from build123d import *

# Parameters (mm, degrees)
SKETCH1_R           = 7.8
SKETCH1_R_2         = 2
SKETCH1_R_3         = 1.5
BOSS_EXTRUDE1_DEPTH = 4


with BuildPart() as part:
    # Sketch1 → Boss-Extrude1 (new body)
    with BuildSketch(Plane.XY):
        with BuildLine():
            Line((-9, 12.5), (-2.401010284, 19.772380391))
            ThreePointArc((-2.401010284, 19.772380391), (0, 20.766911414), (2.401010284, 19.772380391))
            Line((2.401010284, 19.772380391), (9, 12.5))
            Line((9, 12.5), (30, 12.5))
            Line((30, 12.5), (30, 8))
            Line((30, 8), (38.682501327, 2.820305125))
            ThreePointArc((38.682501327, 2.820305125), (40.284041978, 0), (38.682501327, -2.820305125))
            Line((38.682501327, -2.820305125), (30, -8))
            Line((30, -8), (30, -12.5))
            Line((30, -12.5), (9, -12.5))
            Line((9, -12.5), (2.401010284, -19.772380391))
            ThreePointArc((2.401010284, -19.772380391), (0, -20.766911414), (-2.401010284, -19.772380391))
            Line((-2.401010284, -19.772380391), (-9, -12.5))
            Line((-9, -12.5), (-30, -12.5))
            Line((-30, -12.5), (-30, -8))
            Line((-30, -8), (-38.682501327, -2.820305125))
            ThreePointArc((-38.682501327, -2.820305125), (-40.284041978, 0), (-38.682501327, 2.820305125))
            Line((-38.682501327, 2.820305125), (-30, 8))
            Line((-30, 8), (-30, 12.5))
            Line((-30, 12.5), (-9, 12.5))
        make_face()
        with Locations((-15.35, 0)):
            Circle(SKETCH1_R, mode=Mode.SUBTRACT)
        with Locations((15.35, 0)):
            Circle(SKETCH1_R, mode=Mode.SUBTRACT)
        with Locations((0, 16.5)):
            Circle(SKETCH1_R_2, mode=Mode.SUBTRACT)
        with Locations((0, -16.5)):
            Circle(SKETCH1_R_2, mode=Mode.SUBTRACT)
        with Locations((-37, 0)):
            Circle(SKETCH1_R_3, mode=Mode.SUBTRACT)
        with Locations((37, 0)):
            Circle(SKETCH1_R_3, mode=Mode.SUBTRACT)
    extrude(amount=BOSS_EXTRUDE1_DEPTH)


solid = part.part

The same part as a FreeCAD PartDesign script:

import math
import FreeCAD as App
import Part
import Sketcher

doc = App.newDocument("Part")
body = doc.addObject("PartDesign::Body", "Body")

sketch1 = doc.addObject("Sketcher::SketchObject", "Sketch")
body.addObject(sketch1)
sketch1.AttachmentSupport = (doc.XY_Plane, [""])
sketch1.MapMode = "FlatFace"
sketch1.addGeometry(Part.LineSegment(App.Vector(-2.4, 19.8, 0), App.Vector(-9, 12.5, 0)), False)
sketch1.addGeometry(Part.LineSegment(App.Vector(-9, 12.5, 0), App.Vector(-30, 12.5, 0)), False)
sketch1.addGeometry(Part.LineSegment(App.Vector(-30, 12.5, 0), App.Vector(-30, 8, 0)), False)
sketch1.addGeometry(Part.LineSegment(App.Vector(-30, 8, 0), App.Vector(-38.7, 2.8, 0)), False)
sketch1.addGeometry(Part.ArcOfCircle(Part.Circle(App.Vector(-37, 0, 0), App.Vector(0, 0, 1), 3.3), math.radians(121), math.radians(239)), False)
sketch1.addGeometry(Part.LineSegment(App.Vector(-38.7, -2.8, 0), App.Vector(-30, -8, 0)), False)
sketch1.addGeometry(Part.LineSegment(App.Vector(-30, -8, 0), App.Vector(-30, -12.5, 0)), False)
sketch1.addGeometry(Part.LineSegment(App.Vector(-30, -12.5, 0), App.Vector(-9, -12.5, 0)), False)
sketch1.addGeometry(Part.LineSegment(App.Vector(-9, -12.5, 0), App.Vector(-2.4, -19.8, 0)), False)
sketch1.addGeometry(Part.ArcOfCircle(Part.Circle(App.Vector(0, -17.4, 0), App.Vector(0, 0, 1), 3.4), math.radians(-135), math.radians(-45)), False)
sketch1.addGeometry(Part.LineSegment(App.Vector(2.4, -19.8, 0), App.Vector(9, -12.5, 0)), False)
sketch1.addGeometry(Part.LineSegment(App.Vector(9, -12.5, 0), App.Vector(30, -12.5, 0)), False)
sketch1.addGeometry(Part.LineSegment(App.Vector(30, -12.5, 0), App.Vector(30, -8, 0)), False)
sketch1.addGeometry(Part.LineSegment(App.Vector(30, -8, 0), App.Vector(38.7, -2.8, 0)), False)
sketch1.addGeometry(Part.ArcOfCircle(Part.Circle(App.Vector(37, 0, 0), App.Vector(0, 0, 1), 3.3), math.radians(-59), math.radians(59)), False)
sketch1.addGeometry(Part.LineSegment(App.Vector(38.7, 2.8, 0), App.Vector(30, 8, 0)), False)
sketch1.addGeometry(Part.LineSegment(App.Vector(30, 8, 0), App.Vector(30, 12.5, 0)), False)
sketch1.addGeometry(Part.LineSegment(App.Vector(30, 12.5, 0), App.Vector(9, 12.5, 0)), False)
sketch1.addGeometry(Part.LineSegment(App.Vector(9, 12.5, 0), App.Vector(2.4, 19.8, 0)), False)
sketch1.addGeometry(Part.ArcOfCircle(Part.Circle(App.Vector(0, 17.4, 0), App.Vector(0, 0, 1), 3.4), math.radians(45), math.radians(135)), False)
sketch1.addGeometry(Part.Circle(App.Vector(0, -16.5, 0), App.Vector(0, 0, 1), 2), False)
sketch1.addGeometry(Part.Circle(App.Vector(37, 0, 0), App.Vector(0, 0, 1), 1.5), False)
sketch1.addGeometry(Part.Circle(App.Vector(15.3, 0, 0), App.Vector(0, 0, 1), 7.8), False)
sketch1.addGeometry(Part.Circle(App.Vector(-15.3, 0, 0), App.Vector(0, 0, 1), 7.8), False)
sketch1.addGeometry(Part.Circle(App.Vector(-37, 0, 0), App.Vector(0, 0, 1), 1.5), False)
sketch1.addGeometry(Part.Circle(App.Vector(0, 16.5, 0), App.Vector(0, 0, 1), 2), False)
sketch1.addConstraint(Sketcher.Constraint("Coincident", 0, 2, 1, 1))
sketch1.addConstraint(Sketcher.Constraint("Coincident", 1, 2, 2, 1))
sketch1.addConstraint(Sketcher.Constraint("Coincident", 2, 2, 3, 1))
sketch1.addConstraint(Sketcher.Constraint("Tangent", 3, 2, 4, 1))
sketch1.addConstraint(Sketcher.Constraint("Tangent", 4, 2, 5, 1))
sketch1.addConstraint(Sketcher.Constraint("Coincident", 5, 2, 6, 1))
sketch1.addConstraint(Sketcher.Constraint("Coincident", 6, 2, 7, 1))
sketch1.addConstraint(Sketcher.Constraint("Coincident", 7, 2, 8, 1))
sketch1.addConstraint(Sketcher.Constraint("Coincident", 8, 2, 9, 1))
sketch1.addConstraint(Sketcher.Constraint("Coincident", 9, 2, 10, 1))
sketch1.addConstraint(Sketcher.Constraint("Coincident", 10, 2, 11, 1))
sketch1.addConstraint(Sketcher.Constraint("Coincident", 11, 2, 12, 1))
sketch1.addConstraint(Sketcher.Constraint("Coincident", 12, 2, 13, 1))
sketch1.addConstraint(Sketcher.Constraint("Tangent", 13, 2, 14, 1))
sketch1.addConstraint(Sketcher.Constraint("Tangent", 14, 2, 15, 1))
sketch1.addConstraint(Sketcher.Constraint("Coincident", 15, 2, 16, 1))
sketch1.addConstraint(Sketcher.Constraint("Coincident", 16, 2, 17, 1))
sketch1.addConstraint(Sketcher.Constraint("Coincident", 17, 2, 18, 1))
sketch1.addConstraint(Sketcher.Constraint("Coincident", 18, 2, 19, 1))
sketch1.addConstraint(Sketcher.Constraint("Coincident", 19, 2, 0, 1))
sketch1.addConstraint(Sketcher.Constraint("Horizontal", 1))
sketch1.addConstraint(Sketcher.Constraint("Vertical", 2))
sketch1.addConstraint(Sketcher.Constraint("Vertical", 6))
sketch1.addConstraint(Sketcher.Constraint("Horizontal", 7))
sketch1.addConstraint(Sketcher.Constraint("Horizontal", 11))
sketch1.addConstraint(Sketcher.Constraint("Vertical", 12))
sketch1.addConstraint(Sketcher.Constraint("Vertical", 16))
sketch1.addConstraint(Sketcher.Constraint("Horizontal", 17))
sketch1.addConstraint(Sketcher.Constraint("Coincident", 21, 3, 14, 3))
sketch1.addConstraint(Sketcher.Constraint("Coincident", 24, 3, 4, 3))
sketch1.addConstraint(Sketcher.Constraint("Equal", 4, 14))
sketch1.addConstraint(Sketcher.Constraint("Equal", 9, 19))
sketch1.addConstraint(Sketcher.Constraint("Equal", 22, 23))
sketch1.addConstraint(Sketcher.Constraint("Equal", 21, 24))
sketch1.addConstraint(Sketcher.Constraint("Equal", 20, 25))
sketch1.addConstraint(Sketcher.Constraint("Symmetric", 4, 3, 14, 3, -1, 1))
sketch1.addConstraint(Sketcher.Constraint("Symmetric", 9, 3, 19, 3, -1, 1))
sketch1.addConstraint(Sketcher.Constraint("Symmetric", 22, 3, 23, 3, -1, 1))
sketch1.addConstraint(Sketcher.Constraint("Symmetric", 20, 3, 25, 3, -1, 1))
sketch1.addConstraint(Sketcher.Constraint("Symmetric", 0, 2, 10, 2, -1, 1))
sketch1.addConstraint(Sketcher.Constraint("Symmetric", 2, 2, 12, 2, -1, 1))
sketch1.addConstraint(Sketcher.Constraint("Symmetric", 5, 2, 15, 2, -1, 1))
sketch1.addConstraint(Sketcher.Constraint("Symmetric", 7, 2, 17, 2, -1, 1))
sketch1.addConstraint(Sketcher.Constraint("Symmetric", 8, 2, 9, 2, -2))
sketch1.addConstraint(Sketcher.Constraint("Symmetric", 7, 2, 10, 2, -2))
sketch1.addConstraint(Sketcher.Constraint("Symmetric", 5, 2, 12, 2, -2))
sketch1.addConstraint(Sketcher.Constraint("PointOnObject", 4, 3, -1))
sketch1.addConstraint(Sketcher.Constraint("PointOnObject", 20, 3, -2))
sketch1.addConstraint(Sketcher.Constraint("PointOnObject", 22, 3, -1))
sketch1.addConstraint(Sketcher.Constraint("Parallel", 0, 10))
sketch1.addConstraint(Sketcher.Constraint("Parallel", 8, 18))
sketch1.addConstraint(Sketcher.Constraint("Diameter", 20, 4.0))
sketch1.addConstraint(Sketcher.Constraint("Diameter", 21, 3.0))
sketch1.addConstraint(Sketcher.Constraint("Diameter", 22, 15.6))
sketch1.addConstraint(Sketcher.Constraint("DistanceX", 1, 2, 1, 1, 21.0))
sketch1.addConstraint(Sketcher.Constraint("DistanceY", 2, 2, 2, 1, 4.5))
sketch1.addConstraint(Sketcher.Constraint("DistanceX", 4, 3, -1, 1, 37.0))
sketch1.addConstraint(Sketcher.Constraint("DistanceX", 0, 2, -1, 1, 9.0))
sketch1.addConstraint(Sketcher.Constraint("DistanceY", -1, 1, 2, 2, 8.0))
sketch1.addConstraint(Sketcher.Constraint("DistanceY", 20, 3, 25, 3, 33.0))
sketch1.addConstraint(Sketcher.Constraint("DistanceX", 23, 3, 22, 3, 30.7))
sketch1.addConstraint(Sketcher.Constraint("Radius", 4, 3.284042))
sketch1.addConstraint(Sketcher.Constraint("Radius", 9, 3.395541))
sketch1.addConstraint(Sketcher.Constraint("Distance", 0, 9.820091))
sketch1.addConstraint(Sketcher.Constraint("DistanceY", 9, 3, -1, 1, 17.37137))
pad1 = doc.addObject("PartDesign::Pad", "Pad")
body.addObject(pad1)
pad1.Profile = sketch1
pad1.Length = 4

doc.recompute()
